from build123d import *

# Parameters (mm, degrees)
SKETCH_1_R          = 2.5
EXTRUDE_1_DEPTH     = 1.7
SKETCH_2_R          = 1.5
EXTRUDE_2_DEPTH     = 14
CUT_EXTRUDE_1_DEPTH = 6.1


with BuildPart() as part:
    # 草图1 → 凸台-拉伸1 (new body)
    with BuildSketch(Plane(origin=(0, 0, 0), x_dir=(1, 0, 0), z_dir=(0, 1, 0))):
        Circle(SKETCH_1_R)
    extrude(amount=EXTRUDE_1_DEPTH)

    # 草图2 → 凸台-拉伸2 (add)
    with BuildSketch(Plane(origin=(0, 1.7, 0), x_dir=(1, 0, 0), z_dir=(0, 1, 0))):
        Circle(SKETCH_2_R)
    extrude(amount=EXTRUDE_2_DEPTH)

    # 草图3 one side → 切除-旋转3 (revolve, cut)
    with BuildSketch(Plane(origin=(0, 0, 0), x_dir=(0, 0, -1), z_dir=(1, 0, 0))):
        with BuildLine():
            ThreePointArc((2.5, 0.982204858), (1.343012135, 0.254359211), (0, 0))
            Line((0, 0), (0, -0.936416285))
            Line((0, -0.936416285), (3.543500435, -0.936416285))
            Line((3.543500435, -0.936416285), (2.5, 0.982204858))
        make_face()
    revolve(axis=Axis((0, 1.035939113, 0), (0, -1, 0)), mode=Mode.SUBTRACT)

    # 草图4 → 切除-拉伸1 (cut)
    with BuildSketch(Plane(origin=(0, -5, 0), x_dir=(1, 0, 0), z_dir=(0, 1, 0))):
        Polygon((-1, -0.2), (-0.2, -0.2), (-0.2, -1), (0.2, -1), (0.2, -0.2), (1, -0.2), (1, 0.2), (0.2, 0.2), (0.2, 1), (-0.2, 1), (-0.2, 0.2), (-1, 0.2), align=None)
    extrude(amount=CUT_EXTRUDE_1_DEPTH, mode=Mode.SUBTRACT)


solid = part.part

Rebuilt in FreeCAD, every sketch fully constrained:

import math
import FreeCAD as App
import Part
import Sketcher

V = App.Vector

doc = App.newDocument("Part")
body = doc.addObject("PartDesign::Body", "Body")

# Sketch on XZ plane
sketch1 = body.newObject("Sketcher::SketchObject", "Sketch")
sketch1.AttachmentSupport = (doc.getObject("XZ_Plane"), [""])
sketch1.MapMode = "FlatFace"
sketch1.addGeometry(Part.Circle(V(0, 0, 0), V(0, 0, 1), 2.5), False)
sketch1.addConstraint([
    Sketcher.Constraint("Coincident", 0, 3, -1, 1),
    Sketcher.Constraint("Diameter", 0, 5.0),
])
pad1 = body.newObject("PartDesign::Pad", "Pad")
pad1.Profile = sketch1
pad1.Length = 1.7
pad1.Reversed = True

# Sketch on XZ plane
sketch2 = body.newObject("Sketcher::SketchObject", "Sketch001")
sketch2.AttachmentSupport = (doc.getObject("XZ_Plane"), [""])
sketch2.MapMode = "FlatFace"
sketch2.AttachmentOffset = App.Placement(V(0, 0, -1.7), App.Rotation())
sketch2.addGeometry(Part.Circle(V(0, 0, 0), V(0, 0, 1), 1.5), False)
sketch2.addConstraint([
    Sketcher.Constraint("Coincident", 0, 3, -1, 1),
    Sketcher.Constraint("Diameter", 0, 3.0),
])
pad2 = body.newObject("PartDesign::Pad", "Pad001")
pad2.Profile = sketch2
pad2.Length = 14
pad2.Reversed = True

# Sketch on YZ plane
sketch3 = body.newObject("Sketcher::SketchObject", "Sketch002")
sketch3.AttachmentSupport = (doc.getObject("YZ_Plane"), [""])
sketch3.MapMode = "FlatFace"
sketch3.addGeometry([
    Part.ArcOfCircle(Part.Circle(V(3.67272, 0, 0), V(0, 0, 1), 3.67272), math.radians(180), math.radians(222.897935)),
    Part.LineSegment(V(0, 0, 0), V(-0.936416, 0, 0)),
    Part.LineSegment(V(-0.936416, 0, 0), V(-0.936416, -3.5435, 0)),
    Part.LineSegment(V(-0.936416, -3.5435, 0), V(0.982205, -2.5, 0)),
], False)
sketch3.addConstraint([
    Sketcher.Constraint("Coincident", 0, 1, 1, 1),
    Sketcher.Constraint("Coincident", 1, 2, 2, 1),
    Sketcher.Constraint("Coincident", 2, 2, 3, 1),
    Sketcher.Constraint("Coincident", 3, 2, 0, 2),
    Sketcher.Constraint("Horizontal", 1),
    Sketcher.Constraint("Vertical", 2),
    Sketcher.Constraint("Coincident", 0, 1, -1, 1),
    Sketcher.Constraint("PointOnObject", 0, 3, -1),
    Sketcher.Constraint("DistanceY", 3, 2, -1, 1, 2.5),
    Sketcher.Constraint("Radius", 0, 3.67272),
    Sketcher.Constraint("DistanceY", 2, 2, 2, 1, 3.5435),
    Sketcher.Constraint("DistanceX", 1, 2, 1, 1, 0.936416),
])
groove = body.newObject("PartDesign::Groove", "Groove")
groove.Profile = sketch3
groove.ReferenceAxis = (sketch3, ["H_Axis"])
groove.Angle = 360

# Sketch on XZ plane
sketch4 = body.newObject("Sketcher::SketchObject", "Sketch003")
sketch4.AttachmentSupport = (doc.getObject("XZ_Plane"), [""])
sketch4.MapMode = "FlatFace"
sketch4.AttachmentOffset = App.Placement(V(0, 0, 5), App.Rotation())
sketch4.addGeometry([
    Part.LineSegment(V(-1, 0.2, 0), V(-0.2, 0.2, 0)),  # 0
    Part.LineSegment(V(-0.2, 0.2, 0), V(-0.2, 1, 0)),  # 1
    Part.LineSegment(V(-0.2, 1, 0), V(0.2, 1, 0)),  # 2
    Part.LineSegment(V(0.2, 1, 0), V(0.2, 0.2, 0)),  # 3
    Part.LineSegment(V(0.2, 0.2, 0), V(1, 0.2, 0)),  # 4
    Part.LineSegment(V(1, 0.2, 0), V(1, -0.2, 0)),  # 5
    Part.LineSegment(V(1, -0.2, 0), V(0.2, -0.2, 0)),  # 6
    Part.LineSegment(V(0.2, -0.2, 0), V(0.2, -1, 0)),  # 7
    Part.LineSegment(V(0.2, -1, 0), V(-0.2, -1, 0)),  # 8
    Part.LineSegment(V(-0.2, -1, 0), V(-0.2, -0.2, 0)),  # 9
    Part.LineSegment(V(-0.2, -0.2, 0), V(-1, -0.2, 0)),  # 10
    Part.LineSegment(V(-1, -0.2, 0), V(-1, 0.2, 0)),  # 11
], False)
sketch4.addConstraint([
    Sketcher.Constraint("Coincident", 0, 2, 1, 1),
    Sketcher.Constraint("Coincident", 1, 2, 2, 1),
    Sketcher.Constraint("Coincident", 2, 2, 3, 1),
    Sketcher.Constraint("Coincident", 3, 2, 4, 1),
    Sketcher.Constraint("Coincident", 4, 2, 5, 1),
    Sketcher.Constraint("Coincident", 5, 2, 6, 1),
    Sketcher.Constraint("Coincident", 6, 2, 7, 1),
    Sketcher.Constraint("Coincident", 7, 2, 8, 1),
    Sketcher.Constraint("Coincident", 8, 2, 9, 1),
    Sketcher.Constraint("Coincident", 9, 2, 10, 1),
    Sketcher.Constraint("Coincident", 10, 2, 11, 1),
    Sketcher.Constraint("Coincident", 11, 2, 0, 1),
    Sketcher.Constraint("Horizontal", 0),
    Sketcher.Constraint("Vertical", 1),
    Sketcher.Constraint("Horizontal", 2),
    Sketcher.Constraint("Vertical", 3),
    Sketcher.Constraint("Horizontal", 4),
    Sketcher.Constraint("Vertical", 5),
    Sketcher.Constraint("Horizontal", 6),
    Sketcher.Constraint("Vertical", 7),
    Sketcher.Constraint("Horizontal", 8),
    Sketcher.Constraint("Vertical", 9),
    Sketcher.Constraint("Horizontal", 10),
    Sketcher.Constraint("Vertical", 11),
    Sketcher.Constraint("Symmetric", 0, 2, 6, 2, -1, 1),
    Sketcher.Constraint("Symmetric", 2, 2, 8, 2, -1, 1),
    Sketcher.Constraint("Symmetric", 4, 2, 10, 2, -1, 1),
    Sketcher.Constraint("Symmetric", 0, 2, 3, 2, -2),
    Sketcher.Constraint("Equal", 10, 1),
    Sketcher.Constraint("Equal", 8, 5),
    Sketcher.Constraint("DistanceX", 0, 1, 0, 2, 0.8),
    Sketcher.Constraint("DistanceX", 2, 1, 2, 2, 0.4),
])
pocket1 = body.newObject("PartDesign::Pocket", "Pocket")
pocket1.Profile = sketch4
pocket1.Length = 6.1

doc.recompute()
